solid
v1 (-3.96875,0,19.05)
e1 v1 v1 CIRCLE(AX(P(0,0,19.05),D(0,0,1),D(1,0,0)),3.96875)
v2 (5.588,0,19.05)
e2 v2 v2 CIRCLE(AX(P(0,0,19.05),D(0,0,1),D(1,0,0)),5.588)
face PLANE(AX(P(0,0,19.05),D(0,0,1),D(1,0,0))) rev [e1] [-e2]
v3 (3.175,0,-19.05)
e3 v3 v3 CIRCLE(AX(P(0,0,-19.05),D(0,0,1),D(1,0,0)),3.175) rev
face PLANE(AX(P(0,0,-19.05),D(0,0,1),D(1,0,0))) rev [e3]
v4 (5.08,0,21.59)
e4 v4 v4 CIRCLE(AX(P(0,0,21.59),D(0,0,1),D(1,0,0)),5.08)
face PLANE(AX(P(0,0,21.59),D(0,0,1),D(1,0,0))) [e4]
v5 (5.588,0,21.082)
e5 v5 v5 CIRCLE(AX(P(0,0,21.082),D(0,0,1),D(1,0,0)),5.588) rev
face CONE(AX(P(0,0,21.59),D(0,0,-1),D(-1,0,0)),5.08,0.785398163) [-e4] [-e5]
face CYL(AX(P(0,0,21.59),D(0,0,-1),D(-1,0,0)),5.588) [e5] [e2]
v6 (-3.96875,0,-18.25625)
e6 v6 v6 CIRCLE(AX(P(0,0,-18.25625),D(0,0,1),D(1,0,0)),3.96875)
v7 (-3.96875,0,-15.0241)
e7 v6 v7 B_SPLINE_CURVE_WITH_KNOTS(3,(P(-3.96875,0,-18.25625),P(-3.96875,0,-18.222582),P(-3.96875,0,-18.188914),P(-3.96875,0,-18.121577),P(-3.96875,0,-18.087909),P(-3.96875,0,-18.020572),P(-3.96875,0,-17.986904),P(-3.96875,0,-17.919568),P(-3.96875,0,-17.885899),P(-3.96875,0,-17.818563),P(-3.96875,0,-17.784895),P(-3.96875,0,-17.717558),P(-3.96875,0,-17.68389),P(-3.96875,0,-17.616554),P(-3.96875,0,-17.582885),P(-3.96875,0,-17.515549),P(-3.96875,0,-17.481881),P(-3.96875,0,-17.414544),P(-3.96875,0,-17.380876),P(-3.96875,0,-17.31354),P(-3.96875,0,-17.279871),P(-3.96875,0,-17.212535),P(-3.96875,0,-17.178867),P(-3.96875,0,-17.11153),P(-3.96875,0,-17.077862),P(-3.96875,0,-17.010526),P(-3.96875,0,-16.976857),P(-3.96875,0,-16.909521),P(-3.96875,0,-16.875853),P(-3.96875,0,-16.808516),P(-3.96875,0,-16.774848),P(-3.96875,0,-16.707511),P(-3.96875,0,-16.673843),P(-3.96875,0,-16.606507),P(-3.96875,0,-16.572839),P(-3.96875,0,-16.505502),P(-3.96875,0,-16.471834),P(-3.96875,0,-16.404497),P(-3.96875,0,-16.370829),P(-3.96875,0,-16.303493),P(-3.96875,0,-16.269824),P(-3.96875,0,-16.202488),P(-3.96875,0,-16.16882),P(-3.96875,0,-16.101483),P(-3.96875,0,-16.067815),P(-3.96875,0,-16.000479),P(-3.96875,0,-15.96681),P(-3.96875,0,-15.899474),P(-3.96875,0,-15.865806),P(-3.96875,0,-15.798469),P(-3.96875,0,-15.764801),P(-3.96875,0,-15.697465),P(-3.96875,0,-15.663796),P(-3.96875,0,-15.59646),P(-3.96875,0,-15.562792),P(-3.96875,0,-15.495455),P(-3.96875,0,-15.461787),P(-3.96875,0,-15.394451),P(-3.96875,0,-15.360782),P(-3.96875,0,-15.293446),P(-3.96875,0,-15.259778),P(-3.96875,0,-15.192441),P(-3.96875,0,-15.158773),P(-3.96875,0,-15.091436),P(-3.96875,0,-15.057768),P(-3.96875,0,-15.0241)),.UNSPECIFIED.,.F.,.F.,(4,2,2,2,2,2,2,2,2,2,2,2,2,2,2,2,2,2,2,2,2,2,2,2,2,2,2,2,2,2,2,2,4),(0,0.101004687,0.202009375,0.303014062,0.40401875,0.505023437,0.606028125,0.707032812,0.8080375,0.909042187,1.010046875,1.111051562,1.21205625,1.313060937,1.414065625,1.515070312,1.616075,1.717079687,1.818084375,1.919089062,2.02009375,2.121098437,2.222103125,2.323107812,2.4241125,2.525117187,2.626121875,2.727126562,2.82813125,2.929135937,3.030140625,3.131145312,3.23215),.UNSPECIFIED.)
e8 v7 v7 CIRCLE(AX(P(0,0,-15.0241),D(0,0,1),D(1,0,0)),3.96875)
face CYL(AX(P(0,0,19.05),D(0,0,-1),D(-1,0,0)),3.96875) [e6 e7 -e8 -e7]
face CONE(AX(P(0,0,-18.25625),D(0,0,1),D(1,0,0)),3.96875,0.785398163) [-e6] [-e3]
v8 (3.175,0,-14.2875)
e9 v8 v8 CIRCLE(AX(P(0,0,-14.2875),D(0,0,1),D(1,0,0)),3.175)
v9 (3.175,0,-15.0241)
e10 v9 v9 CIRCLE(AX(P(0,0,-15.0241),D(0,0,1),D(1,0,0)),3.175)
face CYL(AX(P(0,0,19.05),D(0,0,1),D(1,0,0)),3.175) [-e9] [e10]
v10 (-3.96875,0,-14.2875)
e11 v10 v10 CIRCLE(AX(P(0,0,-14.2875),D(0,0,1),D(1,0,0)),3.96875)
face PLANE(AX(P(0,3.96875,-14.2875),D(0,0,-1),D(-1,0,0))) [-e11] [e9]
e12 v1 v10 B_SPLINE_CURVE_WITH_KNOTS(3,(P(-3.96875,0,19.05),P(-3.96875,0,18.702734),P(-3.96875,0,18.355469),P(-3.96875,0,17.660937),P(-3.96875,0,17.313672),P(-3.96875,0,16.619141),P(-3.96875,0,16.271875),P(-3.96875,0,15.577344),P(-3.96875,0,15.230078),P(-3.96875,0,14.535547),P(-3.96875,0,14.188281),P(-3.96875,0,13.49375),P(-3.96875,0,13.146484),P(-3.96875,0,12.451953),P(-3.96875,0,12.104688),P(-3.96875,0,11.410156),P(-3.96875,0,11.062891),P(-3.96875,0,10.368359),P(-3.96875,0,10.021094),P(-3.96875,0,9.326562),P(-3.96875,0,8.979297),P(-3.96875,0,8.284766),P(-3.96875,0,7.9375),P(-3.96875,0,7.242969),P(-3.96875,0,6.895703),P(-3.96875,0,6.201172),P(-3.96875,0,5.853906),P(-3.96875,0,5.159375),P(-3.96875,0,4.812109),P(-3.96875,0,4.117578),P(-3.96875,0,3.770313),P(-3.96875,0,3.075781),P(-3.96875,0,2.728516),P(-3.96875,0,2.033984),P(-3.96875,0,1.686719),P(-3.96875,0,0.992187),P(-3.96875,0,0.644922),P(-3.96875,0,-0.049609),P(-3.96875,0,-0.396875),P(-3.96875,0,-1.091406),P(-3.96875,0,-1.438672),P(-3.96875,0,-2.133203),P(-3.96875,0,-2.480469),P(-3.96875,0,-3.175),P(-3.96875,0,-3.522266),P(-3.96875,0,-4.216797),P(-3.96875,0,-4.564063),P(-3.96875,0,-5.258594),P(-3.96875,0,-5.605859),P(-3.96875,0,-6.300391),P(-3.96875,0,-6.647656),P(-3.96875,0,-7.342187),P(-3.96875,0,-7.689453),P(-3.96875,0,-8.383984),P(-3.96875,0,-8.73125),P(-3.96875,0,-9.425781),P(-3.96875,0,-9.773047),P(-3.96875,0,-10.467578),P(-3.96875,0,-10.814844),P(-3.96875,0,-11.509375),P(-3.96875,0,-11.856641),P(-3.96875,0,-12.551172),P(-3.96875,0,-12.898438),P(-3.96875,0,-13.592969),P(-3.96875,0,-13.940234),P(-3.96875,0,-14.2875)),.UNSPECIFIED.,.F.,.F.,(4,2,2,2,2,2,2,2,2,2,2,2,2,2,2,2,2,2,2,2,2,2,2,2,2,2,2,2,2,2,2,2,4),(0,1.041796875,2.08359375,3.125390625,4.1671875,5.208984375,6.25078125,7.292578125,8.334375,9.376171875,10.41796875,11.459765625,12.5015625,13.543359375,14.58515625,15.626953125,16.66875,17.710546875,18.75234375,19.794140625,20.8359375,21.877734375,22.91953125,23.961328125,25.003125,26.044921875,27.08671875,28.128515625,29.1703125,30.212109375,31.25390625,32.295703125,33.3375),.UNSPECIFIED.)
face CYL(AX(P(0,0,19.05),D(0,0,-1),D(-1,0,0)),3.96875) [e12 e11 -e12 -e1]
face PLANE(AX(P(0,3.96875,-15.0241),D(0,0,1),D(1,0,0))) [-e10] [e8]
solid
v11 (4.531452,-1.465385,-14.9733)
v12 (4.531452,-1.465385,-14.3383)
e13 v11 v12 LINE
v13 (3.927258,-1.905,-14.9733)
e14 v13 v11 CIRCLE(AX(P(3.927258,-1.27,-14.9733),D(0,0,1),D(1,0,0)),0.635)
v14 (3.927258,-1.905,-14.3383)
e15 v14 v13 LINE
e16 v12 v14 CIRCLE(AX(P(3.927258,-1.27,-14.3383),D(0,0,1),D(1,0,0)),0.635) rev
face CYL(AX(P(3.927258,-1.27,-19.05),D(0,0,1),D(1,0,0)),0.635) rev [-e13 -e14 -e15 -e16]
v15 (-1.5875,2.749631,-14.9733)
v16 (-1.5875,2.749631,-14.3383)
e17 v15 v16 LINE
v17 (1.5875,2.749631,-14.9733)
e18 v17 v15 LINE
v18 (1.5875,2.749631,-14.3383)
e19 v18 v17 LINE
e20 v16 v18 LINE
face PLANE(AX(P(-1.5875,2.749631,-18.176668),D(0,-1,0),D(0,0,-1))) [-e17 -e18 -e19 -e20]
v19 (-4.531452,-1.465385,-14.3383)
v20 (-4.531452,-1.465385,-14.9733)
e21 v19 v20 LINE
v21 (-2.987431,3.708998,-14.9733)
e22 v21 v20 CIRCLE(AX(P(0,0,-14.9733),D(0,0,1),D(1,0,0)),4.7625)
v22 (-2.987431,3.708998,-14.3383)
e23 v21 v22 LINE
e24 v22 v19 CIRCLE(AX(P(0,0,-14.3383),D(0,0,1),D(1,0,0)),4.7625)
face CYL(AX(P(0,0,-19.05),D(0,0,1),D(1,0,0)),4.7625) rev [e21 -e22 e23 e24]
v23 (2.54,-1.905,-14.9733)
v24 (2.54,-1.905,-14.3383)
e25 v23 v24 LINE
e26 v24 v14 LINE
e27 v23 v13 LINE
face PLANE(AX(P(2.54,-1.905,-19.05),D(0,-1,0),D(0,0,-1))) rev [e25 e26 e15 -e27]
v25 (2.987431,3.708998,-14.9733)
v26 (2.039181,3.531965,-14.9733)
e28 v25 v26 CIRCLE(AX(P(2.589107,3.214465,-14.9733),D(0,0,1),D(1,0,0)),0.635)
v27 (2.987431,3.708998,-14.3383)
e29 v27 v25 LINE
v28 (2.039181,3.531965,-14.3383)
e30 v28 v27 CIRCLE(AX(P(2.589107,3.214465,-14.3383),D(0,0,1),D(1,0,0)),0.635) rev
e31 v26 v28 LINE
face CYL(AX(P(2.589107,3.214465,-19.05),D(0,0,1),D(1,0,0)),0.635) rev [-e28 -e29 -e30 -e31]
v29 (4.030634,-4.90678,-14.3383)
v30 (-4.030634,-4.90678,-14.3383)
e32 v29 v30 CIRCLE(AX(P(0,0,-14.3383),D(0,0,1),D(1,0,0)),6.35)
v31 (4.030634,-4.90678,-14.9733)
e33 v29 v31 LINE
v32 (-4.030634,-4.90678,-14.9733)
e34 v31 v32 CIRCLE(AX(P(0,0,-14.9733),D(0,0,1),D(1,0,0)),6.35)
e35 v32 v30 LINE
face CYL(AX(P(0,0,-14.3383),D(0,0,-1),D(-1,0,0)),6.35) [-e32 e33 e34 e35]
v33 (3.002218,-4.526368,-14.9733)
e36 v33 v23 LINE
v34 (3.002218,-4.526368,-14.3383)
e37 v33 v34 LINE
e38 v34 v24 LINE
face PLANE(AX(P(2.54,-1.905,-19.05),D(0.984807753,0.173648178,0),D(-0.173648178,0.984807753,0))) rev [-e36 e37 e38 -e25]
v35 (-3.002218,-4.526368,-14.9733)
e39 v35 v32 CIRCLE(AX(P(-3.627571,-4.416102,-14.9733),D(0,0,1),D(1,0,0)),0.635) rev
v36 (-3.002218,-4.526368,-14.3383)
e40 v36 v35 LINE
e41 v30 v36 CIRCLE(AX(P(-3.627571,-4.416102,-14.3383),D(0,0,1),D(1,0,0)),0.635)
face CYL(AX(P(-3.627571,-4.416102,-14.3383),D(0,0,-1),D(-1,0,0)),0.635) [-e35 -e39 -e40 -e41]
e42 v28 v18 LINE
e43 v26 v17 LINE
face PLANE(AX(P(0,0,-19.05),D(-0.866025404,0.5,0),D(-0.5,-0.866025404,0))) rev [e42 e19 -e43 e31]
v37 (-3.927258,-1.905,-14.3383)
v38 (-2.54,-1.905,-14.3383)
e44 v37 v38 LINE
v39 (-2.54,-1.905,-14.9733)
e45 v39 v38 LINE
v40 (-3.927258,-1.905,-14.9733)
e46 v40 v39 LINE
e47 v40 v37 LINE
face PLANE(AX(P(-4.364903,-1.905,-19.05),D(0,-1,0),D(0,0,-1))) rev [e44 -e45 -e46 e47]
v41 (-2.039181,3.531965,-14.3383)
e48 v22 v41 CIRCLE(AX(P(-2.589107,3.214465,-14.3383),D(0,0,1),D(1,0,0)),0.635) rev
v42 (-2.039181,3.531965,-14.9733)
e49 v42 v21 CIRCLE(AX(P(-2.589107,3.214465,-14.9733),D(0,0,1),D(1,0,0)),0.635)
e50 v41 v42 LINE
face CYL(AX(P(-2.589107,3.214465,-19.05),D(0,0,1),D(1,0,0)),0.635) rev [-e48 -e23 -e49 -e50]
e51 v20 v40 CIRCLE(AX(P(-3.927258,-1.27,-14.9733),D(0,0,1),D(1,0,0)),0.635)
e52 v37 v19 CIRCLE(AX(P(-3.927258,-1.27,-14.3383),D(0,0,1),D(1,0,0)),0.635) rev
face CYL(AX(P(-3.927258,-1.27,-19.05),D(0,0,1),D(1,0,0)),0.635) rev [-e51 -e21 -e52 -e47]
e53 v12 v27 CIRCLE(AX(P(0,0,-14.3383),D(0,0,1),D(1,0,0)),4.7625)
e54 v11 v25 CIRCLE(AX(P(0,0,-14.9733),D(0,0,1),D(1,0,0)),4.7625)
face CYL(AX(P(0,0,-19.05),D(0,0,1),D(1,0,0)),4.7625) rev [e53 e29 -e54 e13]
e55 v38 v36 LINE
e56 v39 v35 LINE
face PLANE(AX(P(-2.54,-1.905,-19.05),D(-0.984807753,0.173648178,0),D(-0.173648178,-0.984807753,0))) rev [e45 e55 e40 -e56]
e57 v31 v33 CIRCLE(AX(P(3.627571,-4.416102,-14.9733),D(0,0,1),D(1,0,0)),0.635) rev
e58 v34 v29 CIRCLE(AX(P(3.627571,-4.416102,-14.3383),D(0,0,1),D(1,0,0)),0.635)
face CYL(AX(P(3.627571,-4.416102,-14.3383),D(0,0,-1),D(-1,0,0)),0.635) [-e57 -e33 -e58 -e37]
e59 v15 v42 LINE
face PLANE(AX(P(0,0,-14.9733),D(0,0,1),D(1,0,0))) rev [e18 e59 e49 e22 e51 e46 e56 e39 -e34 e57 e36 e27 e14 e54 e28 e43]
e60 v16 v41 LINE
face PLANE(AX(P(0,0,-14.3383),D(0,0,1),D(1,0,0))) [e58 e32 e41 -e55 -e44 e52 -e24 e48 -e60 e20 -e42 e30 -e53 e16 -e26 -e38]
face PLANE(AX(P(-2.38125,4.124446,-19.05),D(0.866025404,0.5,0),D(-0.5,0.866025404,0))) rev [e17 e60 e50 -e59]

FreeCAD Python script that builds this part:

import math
import FreeCAD as App
import Part
import Sketcher

V = App.Vector
Q = App.Units.Quantity


def edges_at(feature, points):
    """Names of the edges that pass closest to the given points."""
    edges = feature.Shape.Edges
    near = lambda p: min(range(len(edges)), key=lambda i: edges[i].distToShape(Part.Vertex(*p))[0])
    return sorted({f"Edge{near(p) + 1}" for p in points})

doc = App.newDocument("Part")
body = doc.addObject("PartDesign::Body", "Body")

sketch1 = body.newObject("Sketcher::SketchObject", "Sketch")
sketch1.AttachmentSupport = (doc.getObject("XY_Plane"), [""])
sketch1.MapMode = "FlatFace"
sketch1.addGeometry(Part.Circle(V(0, 0, 0), V(0, 0, 1), 4), False)
sketch1.addConstraint([
    Sketcher.Constraint("Coincident", 0, 3, -1, 1),
    Sketcher.Constraint("Diameter", 0, Q("0.3125 in")),
])
pad1 = body.newObject("PartDesign::Pad", "Pad")
pad1.Profile = sketch1
pad1.Length = Q("1.5 in")
pad1.Midplane = True

sketch2 = body.newObject("Sketcher::SketchObject", "Sketch001")
sketch2.AttachmentSupport = (doc.getObject("YZ_Plane"), [""])
sketch2.MapMode = "FlatFace"
sketch2.addGeometry([
    Part.LineSegment(V(4, -14.3, 0), V(3.2, -14.3, 0)),
    Part.LineSegment(V(3.2, -14.3, 0), V(3.2, -15, 0)),
    Part.LineSegment(V(3.2, -15, 0), V(4, -15, 0)),
    Part.LineSegment(V(4, -15, 0), V(4, -14.3, 0)),
], False)
sketch2.addConstraint([
    Sketcher.Constraint("Coincident", 0, 2, 1, 1),
    Sketcher.Constraint("Coincident", 1, 2, 2, 1),
    Sketcher.Constraint("Coincident", 2, 2, 3, 1),
    Sketcher.Constraint("Coincident", 3, 2, 0, 1),
    Sketcher.Constraint("Horizontal", 0),
    Sketcher.Constraint("Vertical", 1),
    Sketcher.Constraint("Horizontal", 2),
    Sketcher.Constraint("Vertical", 3),
    Sketcher.Constraint("DistanceX", 0, 2, 0, 1, Q("0.03125 in")),
    Sketcher.Constraint("DistanceY", 1, 2, 1, 1, Q("0.029 in")),
    Sketcher.Constraint("DistanceX", -1, 1, 0, 2, Q("0.125 in")),
    Sketcher.Constraint("DistanceY", 0, 2, -1, 1, Q("0.5625 in")),
])
groove = body.newObject("PartDesign::Groove", "Groove")
groove.Profile = sketch2
groove.ReferenceAxis = (sketch2, ["V_Axis"])
groove.Angle = 360

sketch3 = body.newObject("Sketcher::SketchObject", "Sketch002")
sketch3.AttachmentSupport = (doc.getObject("XY_Plane"), [""])
sketch3.MapMode = "FlatFace"
sketch3.AttachmentOffset = App.Placement(V(0, 0, 0.75 * 25.4), App.Rotation())
sketch3.addGeometry(Part.Circle(V(0, 0, 0), V(0, 0, 1), 6), False)
sketch3.addConstraint([
    Sketcher.Constraint("Coincident", 0, 3, -1, 1),
    Sketcher.Constraint("Diameter", 0, Q("0.44 in")),
])
pad2 = body.newObject("PartDesign::Pad", "Pad001")
pad2.Profile = sketch3
pad2.Length = Q("0.1 in")
doc.recompute()

chamfer = body.newObject("PartDesign::Chamfer", "Chamfer")
chamfer.Base = (pad2, edges_at(pad2, [(-5.588, 0, 21.59)]))
chamfer.Size = Q("0.02 in")
doc.recompute()

chamfer2 = body.newObject("PartDesign::Chamfer", "Chamfer001")
chamfer2.Base = (chamfer, edges_at(chamfer, [(3.969, 0, -19.05)]))
chamfer2.Size = Q("0.03125 in")
body2 = doc.addObject("PartDesign::Body", "Body001")

sketch4 = body2.newObject("Sketcher::SketchObject", "Sketch003")
sketch4.AttachmentSupport = (doc.getObject("XY_Plane001"), [""])
sketch4.MapMode = "FlatFace"
sketch4.AttachmentOffset = App.Placement(V(0, 0, -0.577 * 25.4), App.Rotation())
sketch4.addGeometry([
    Part.Circle(V(0, 0, 0), V(0, 0, 1), 6.3),
    Part.Circle(V(0, 0, 0), V(0, 0, 1), 3.2),
], False)
sketch4.addConstraint([
    Sketcher.Constraint("Coincident", 0, 3, -1, 1),
    Sketcher.Constraint("Coincident", 1, 3, -1, 1),
    Sketcher.Constraint("Diameter", 0, Q("0.5 in")),
    Sketcher.Constraint("Diameter", 1, Q("0.25 in")),
])
pad3 = body2.newObject("PartDesign::Pad", "Pad002")
pad3.Profile = sketch4
pad3.Length = Q("0.025 in")
pad3.Midplane = True

sketch5 = body2.newObject("Sketcher::SketchObject", "Sketch004")
sketch5.AttachmentSupport = (doc.getObject("XY_Plane001"), [""])
sketch5.MapMode = "FlatFace"
sketch5.addGeometry([
    Part.LineSegment(V(0, 0, 0), V(-2.4, 4.1, 0)),
    Part.ArcOfCircle(Part.Circle(V(0, 0, 0), V(0, 0, 1), 4.8), math.radians(120), math.radians(204)),
    Part.LineSegment(V(-4.4, -1.9, 0), V(-2.5, -1.9, 0)),
    Part.LineSegment(V(-2.5, -1.9, 0), V(-3.2, -5.5, 0)),
    Part.ArcOfCircle(Part.Circle(V(0, 0, 0), V(0, 0, 1), 6.4), math.radians(-120), math.radians(-60)),
    Part.LineSegment(V(3.2, -5.5, 0), V(2.5, -1.9, 0)),
    Part.LineSegment(V(2.5, -1.9, 0), V(4.4, -1.9, 0)),
    Part.ArcOfCircle(Part.Circle(V(0, 0, 0), V(0, 0, 1), 4.8), math.radians(-24), math.radians(60)),
    Part.LineSegment(V(2.4, 4.1, 0), V(0, 0, 0)),
], False)
sketch5.addConstraint([
    Sketcher.Constraint("Coincident", 0, 2, 1, 1),
    Sketcher.Constraint("Coincident", 1, 2, 2, 1),
    Sketcher.Constraint("Coincident", 2, 2, 3, 1),
    Sketcher.Constraint("Coincident", 3, 2, 4, 1),
    Sketcher.Constraint("Coincident", 4, 2, 5, 1),
    Sketcher.Constraint("Coincident", 5, 2, 6, 1),
    Sketcher.Constraint("Coincident", 6, 2, 7, 1),
    Sketcher.Constraint("Coincident", 7, 2, 8, 1),
    Sketcher.Constraint("Coincident", 8, 2, 0, 1),
    Sketcher.Constraint("Horizontal", 2),
    Sketcher.Constraint("Horizontal", 6),
    Sketcher.Constraint("Coincident", 1, 3, -1, 1),
    Sketcher.Constraint("Coincident", 4, 3, -1, 1),
    Sketcher.Constraint("Coincident", 7, 3, -1, 1),
    Sketcher.Constraint("Coincident", 8, 2, -1, 1),
    Sketcher.Constraint("Equal", 1, 7),
    Sketcher.Constraint("Symmetric", 2, 2, 5, 2, -2),
    Sketcher.Constraint("Horizontal", 3, 2, 4, 2),
    Sketcher.Constraint("Horizontal", 0, 2, 7, 2),
    Sketcher.Constraint("Radius", 4, Q("0.25 in")),
    Sketcher.Constraint("Angle", 0, Q("120 deg")),
    Sketcher.Constraint("Angle", 3, Q("-100 deg")),
    Sketcher.Constraint("Radius", 1, Q("0.1875 in")),
    Sketcher.Constraint("DistanceX", 2, 2, -1, 1, Q("0.1 in")),
    Sketcher.Constraint("DistanceY", 1, 2, -1, 1, Q("0.075 in")),
])
pocket1 = body2.newObject("PartDesign::Pocket", "Pocket")
pocket1.Profile = sketch5
pocket1.Type = "ThroughAll"

sketch6 = body2.newObject("Sketcher::SketchObject", "Sketch005")
sketch6.AttachmentSupport = (doc.getObject("XY_Plane001"), [""])
sketch6.MapMode = "FlatFace"
sketch6.AttachmentOffset = App.Placement(V(0, 0, -0.5645 * 25.4), App.Rotation())
sketch6.addGeometry([
    Part.LineSegment(V(-1.6, 2.7, 0), V(1.6, 2.7, 0)),
    Part.ArcOfCircle(Part.Circle(V(0, 0, 0), V(0, 0, 1), 3.2), math.radians(60), math.radians(120)),
], False)
sketch6.addConstraint([
    Sketcher.Constraint("Coincident", 0, 1, 1, 2),
    Sketcher.Constraint("Coincident", 1, 1, 0, 2),
    Sketcher.Constraint("Horizontal", 0),
    Sketcher.Constraint("Coincident", 1, 3, -1, 1),
    Sketcher.Constraint("Radius", 1, Q("0.125 in")),
    Sketcher.Constraint("DistanceX", 0, 1, 0, 2, Q("0.125 in")),
])
pad4 = body2.newObject("PartDesign::Pad", "Pad003")
pad4.Profile = sketch6
pad4.Length = Q("0.025 in")
pad4.Reversed = True
doc.recompute()

fillet = body2.newObject("PartDesign::Fillet", "Fillet")
fillet.Base = (pad4, edges_at(pad4, [
    (2.381, 4.124, -14.656),
    (3.174, -5.5, -14.656),
    (-4.365, -1.905, -14.656),
    (4.365, -1.905, -14.656),
    (-3.174, -5.5, -14.656),
    (-2.381, 4.124, -14.656),
]))
fillet.Radius = Q("0.025 in")

doc.recompute()
